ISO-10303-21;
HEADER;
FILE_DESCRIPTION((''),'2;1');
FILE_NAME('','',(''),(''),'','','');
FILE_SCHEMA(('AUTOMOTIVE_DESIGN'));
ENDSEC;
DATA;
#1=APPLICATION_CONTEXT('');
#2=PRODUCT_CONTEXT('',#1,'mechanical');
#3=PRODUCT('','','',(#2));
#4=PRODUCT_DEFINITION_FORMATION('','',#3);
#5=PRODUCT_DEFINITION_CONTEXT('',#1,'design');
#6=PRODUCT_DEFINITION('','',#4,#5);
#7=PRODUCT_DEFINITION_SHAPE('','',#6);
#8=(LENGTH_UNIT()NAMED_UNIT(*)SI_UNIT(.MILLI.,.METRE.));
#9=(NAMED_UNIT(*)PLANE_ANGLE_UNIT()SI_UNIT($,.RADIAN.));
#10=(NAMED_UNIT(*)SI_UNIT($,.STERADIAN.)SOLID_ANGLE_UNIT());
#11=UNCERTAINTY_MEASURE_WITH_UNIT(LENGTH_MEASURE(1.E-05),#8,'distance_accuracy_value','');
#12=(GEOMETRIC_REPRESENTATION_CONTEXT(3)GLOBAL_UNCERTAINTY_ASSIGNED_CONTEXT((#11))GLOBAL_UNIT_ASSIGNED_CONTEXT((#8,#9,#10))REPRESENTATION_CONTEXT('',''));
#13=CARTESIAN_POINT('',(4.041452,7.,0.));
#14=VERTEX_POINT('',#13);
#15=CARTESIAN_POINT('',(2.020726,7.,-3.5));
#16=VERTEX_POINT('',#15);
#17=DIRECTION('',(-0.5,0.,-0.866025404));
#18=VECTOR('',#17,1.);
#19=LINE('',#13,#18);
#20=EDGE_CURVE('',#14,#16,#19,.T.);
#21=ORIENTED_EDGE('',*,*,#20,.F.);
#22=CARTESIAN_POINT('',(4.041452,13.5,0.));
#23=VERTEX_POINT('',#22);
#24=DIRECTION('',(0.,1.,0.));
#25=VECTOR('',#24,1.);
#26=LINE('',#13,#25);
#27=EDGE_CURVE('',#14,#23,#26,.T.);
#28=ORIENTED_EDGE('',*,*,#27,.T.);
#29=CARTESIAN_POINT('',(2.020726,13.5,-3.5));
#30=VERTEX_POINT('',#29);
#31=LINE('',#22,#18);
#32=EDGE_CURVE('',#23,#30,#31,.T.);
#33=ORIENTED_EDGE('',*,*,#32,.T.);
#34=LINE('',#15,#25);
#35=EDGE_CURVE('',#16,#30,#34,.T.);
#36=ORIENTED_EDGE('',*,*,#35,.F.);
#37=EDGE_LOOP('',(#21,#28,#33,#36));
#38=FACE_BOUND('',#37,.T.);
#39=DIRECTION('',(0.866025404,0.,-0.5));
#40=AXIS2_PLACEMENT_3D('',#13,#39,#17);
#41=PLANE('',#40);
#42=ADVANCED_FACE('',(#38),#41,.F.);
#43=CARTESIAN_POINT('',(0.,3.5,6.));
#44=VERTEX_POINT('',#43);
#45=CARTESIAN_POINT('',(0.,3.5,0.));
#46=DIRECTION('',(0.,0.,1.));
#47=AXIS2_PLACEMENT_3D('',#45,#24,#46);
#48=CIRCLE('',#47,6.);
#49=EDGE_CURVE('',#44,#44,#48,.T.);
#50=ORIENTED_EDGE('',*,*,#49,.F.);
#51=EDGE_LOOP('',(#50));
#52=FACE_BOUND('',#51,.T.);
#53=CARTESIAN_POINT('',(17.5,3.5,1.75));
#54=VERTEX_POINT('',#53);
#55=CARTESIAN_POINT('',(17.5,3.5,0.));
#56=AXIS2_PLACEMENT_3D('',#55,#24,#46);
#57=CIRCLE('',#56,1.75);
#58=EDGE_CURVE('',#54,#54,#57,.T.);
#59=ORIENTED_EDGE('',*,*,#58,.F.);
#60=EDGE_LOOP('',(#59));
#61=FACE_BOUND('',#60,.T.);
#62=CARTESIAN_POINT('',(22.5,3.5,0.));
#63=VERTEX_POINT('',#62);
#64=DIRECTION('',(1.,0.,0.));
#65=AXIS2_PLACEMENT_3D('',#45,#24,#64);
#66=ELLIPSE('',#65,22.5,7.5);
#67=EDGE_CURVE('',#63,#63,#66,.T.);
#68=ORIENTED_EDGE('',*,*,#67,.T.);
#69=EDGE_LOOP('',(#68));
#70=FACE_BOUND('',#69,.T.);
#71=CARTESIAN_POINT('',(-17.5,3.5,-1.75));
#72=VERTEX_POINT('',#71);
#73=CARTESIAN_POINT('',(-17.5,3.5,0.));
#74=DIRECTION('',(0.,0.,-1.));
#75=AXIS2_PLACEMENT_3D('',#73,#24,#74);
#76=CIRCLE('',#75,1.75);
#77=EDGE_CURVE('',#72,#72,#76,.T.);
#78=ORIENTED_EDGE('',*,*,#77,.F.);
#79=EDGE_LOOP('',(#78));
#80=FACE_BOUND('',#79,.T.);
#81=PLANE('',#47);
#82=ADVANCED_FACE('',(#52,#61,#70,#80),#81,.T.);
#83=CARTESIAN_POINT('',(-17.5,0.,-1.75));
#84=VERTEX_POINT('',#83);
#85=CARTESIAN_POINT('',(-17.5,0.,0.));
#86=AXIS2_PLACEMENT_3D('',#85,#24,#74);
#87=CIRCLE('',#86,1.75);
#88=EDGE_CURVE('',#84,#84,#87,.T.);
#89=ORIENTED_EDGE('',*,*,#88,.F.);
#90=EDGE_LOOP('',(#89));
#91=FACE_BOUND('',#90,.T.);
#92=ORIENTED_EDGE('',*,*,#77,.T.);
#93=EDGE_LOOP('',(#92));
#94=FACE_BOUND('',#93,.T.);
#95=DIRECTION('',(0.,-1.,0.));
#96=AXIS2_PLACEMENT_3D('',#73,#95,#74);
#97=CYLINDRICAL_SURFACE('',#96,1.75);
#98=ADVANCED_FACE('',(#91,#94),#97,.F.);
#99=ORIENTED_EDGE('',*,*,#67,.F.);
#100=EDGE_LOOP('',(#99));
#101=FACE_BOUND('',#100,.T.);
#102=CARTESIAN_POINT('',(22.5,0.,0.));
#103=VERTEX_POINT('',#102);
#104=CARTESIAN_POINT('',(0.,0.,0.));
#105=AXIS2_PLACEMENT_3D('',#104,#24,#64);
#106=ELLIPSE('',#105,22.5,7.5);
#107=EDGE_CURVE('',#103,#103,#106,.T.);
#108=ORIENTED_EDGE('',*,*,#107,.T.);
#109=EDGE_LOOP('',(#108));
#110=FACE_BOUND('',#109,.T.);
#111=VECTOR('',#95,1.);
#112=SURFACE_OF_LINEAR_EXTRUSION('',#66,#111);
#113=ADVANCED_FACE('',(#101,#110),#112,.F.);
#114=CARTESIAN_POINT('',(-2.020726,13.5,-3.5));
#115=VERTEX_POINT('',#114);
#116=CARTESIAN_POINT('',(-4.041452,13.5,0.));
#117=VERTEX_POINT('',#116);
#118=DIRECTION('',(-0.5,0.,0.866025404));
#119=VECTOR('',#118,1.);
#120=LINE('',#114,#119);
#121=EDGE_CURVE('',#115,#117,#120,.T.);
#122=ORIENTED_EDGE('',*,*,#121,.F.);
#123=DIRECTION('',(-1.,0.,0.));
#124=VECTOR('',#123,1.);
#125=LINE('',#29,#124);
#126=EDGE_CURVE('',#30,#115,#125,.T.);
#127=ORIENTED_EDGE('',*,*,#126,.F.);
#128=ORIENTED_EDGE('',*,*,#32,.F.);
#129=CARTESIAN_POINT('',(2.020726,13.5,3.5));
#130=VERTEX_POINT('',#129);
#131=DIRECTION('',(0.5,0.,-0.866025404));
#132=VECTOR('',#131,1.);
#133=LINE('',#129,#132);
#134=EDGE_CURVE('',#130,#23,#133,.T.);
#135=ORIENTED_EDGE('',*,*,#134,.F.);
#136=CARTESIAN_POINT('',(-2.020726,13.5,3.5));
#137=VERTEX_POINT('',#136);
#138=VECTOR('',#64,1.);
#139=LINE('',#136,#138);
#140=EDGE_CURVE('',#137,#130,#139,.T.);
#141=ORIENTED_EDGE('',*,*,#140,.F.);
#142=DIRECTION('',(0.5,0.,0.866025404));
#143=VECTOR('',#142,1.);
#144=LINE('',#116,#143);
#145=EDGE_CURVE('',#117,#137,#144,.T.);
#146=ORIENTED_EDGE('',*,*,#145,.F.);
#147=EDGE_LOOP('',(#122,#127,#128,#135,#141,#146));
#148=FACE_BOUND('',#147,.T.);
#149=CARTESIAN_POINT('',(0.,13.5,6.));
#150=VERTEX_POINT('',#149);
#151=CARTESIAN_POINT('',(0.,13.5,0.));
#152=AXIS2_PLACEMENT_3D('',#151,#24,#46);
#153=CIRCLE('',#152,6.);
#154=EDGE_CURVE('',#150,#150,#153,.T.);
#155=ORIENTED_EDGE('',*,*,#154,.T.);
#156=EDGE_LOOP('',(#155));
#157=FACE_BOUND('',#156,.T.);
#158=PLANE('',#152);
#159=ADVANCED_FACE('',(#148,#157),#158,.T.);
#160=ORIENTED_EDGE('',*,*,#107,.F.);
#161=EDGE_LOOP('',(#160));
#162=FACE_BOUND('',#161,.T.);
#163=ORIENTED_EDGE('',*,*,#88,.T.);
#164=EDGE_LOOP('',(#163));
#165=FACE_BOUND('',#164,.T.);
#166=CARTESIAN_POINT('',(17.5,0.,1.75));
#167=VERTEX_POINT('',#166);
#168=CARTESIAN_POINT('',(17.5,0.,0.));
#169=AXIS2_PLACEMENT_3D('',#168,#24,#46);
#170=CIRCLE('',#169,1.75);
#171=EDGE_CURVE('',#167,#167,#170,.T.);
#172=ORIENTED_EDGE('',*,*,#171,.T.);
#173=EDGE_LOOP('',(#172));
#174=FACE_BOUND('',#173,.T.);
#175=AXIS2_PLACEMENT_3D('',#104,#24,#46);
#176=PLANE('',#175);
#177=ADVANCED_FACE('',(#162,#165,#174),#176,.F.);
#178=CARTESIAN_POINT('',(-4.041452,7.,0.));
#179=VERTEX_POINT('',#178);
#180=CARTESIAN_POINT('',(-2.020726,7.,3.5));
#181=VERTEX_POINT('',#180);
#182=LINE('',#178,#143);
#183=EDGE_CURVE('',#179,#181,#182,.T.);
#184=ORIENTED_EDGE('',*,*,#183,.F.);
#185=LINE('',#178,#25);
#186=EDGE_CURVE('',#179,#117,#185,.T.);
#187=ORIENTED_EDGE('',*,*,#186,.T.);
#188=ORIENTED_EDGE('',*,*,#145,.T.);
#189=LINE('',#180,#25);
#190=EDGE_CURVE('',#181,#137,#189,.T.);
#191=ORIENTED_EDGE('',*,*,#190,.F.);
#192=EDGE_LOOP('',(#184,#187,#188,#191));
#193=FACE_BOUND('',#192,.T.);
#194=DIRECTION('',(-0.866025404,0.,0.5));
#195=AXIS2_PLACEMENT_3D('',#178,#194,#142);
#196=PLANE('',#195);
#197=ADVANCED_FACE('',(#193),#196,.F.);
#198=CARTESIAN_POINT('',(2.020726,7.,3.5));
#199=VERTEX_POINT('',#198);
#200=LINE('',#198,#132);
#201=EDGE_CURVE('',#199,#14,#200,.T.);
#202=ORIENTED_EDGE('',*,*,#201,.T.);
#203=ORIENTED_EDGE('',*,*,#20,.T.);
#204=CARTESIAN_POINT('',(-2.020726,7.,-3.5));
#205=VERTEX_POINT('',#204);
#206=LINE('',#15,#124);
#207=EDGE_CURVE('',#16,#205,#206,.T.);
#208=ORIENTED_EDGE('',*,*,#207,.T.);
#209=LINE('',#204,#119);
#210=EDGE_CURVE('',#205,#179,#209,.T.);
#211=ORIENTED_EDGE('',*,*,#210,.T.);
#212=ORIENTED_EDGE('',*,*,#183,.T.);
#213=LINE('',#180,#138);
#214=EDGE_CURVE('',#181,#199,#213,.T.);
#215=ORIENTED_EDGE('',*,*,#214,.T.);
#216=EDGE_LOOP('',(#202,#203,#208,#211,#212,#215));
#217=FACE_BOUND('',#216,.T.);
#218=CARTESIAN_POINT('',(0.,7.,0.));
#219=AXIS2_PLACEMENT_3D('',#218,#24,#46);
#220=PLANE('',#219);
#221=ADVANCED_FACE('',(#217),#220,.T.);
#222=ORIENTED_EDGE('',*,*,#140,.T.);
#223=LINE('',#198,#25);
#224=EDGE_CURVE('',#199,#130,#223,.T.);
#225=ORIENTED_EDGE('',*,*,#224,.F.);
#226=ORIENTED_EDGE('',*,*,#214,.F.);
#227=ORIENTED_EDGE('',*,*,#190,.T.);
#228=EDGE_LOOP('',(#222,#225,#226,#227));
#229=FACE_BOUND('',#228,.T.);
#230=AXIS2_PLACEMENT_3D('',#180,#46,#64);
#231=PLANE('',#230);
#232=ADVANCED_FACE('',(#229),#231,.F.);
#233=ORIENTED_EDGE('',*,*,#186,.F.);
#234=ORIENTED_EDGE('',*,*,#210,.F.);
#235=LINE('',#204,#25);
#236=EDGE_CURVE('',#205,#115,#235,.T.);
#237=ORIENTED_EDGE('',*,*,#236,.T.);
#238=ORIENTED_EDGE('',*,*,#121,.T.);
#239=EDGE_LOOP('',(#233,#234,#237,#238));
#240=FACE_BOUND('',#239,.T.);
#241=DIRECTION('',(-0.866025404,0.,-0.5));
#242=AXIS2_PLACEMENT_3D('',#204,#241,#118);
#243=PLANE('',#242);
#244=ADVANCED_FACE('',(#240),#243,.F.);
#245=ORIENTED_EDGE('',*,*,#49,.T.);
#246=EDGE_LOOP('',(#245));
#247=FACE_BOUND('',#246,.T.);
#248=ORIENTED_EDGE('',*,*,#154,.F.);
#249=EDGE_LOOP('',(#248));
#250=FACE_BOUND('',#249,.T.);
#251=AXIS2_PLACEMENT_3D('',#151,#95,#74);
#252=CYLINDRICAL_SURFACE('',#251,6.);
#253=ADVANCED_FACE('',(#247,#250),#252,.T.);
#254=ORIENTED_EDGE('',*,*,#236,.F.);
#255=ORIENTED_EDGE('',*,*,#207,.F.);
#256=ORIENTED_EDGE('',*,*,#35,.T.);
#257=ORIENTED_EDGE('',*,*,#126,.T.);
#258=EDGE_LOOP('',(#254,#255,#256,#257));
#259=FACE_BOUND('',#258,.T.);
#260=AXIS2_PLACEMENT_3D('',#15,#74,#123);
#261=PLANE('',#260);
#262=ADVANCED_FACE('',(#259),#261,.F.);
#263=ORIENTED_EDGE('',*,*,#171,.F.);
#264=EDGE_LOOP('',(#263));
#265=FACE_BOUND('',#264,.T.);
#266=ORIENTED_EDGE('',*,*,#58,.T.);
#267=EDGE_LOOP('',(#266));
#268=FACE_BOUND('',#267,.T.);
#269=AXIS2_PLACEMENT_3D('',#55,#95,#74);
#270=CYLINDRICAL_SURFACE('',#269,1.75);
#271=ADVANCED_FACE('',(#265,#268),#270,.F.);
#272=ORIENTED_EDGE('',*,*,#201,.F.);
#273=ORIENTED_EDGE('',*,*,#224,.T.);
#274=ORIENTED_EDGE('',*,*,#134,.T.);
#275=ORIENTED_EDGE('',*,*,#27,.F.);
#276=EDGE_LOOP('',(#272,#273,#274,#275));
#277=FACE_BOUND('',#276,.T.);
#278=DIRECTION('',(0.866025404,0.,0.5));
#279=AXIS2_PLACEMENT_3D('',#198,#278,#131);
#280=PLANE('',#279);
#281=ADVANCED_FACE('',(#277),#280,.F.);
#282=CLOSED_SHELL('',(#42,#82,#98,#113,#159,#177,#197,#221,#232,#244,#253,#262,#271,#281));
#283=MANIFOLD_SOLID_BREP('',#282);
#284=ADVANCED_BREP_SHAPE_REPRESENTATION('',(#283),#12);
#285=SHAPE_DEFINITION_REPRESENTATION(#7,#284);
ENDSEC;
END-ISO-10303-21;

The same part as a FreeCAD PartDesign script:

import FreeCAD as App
import Part
import Sketcher
from FreeCAD import Vector
Q = App.Units.Quantity

doc = App.newDocument("Part")
body = doc.addObject("PartDesign::Body", "Body")

sketch1 = body.newObject("Sketcher::SketchObject", "Sketch")
sketch1.AttachmentSupport = (doc.getObject("XZ_Plane"), [""])
sketch1.MapMode = "FlatFace"
sketch1.addGeometry([
    Part.Ellipse(Vector(22.5, 0, 0), Vector(0, 7.5, 0), Vector(0, 0, 0)),
    Part.Circle(Vector(-17.5, 0, 0), Vector(0, 0, 1), 1.75),
    Part.Circle(Vector(17.5, 0, 0), Vector(0, 0, 1), 1.75),
], False)
sketch1.addConstraint([
    Sketcher.Constraint("Block", 0),
    Sketcher.Constraint("Equal", 1, 2),
    Sketcher.Constraint("Symmetric", 1, 3, 2, 3, -1, 1),
    Sketcher.Constraint("PointOnObject", 1, 3, -1),
    Sketcher.Constraint("Diameter", 1, 3.5),
    Sketcher.Constraint("DistanceX", 1, 3, 2, 3, 35.0),
])
pad1 = body.newObject("PartDesign::Pad", "Pad")
pad1.Profile = sketch1
pad1.Length = 3.5
pad1.Reversed = True

sketch2 = body.newObject("Sketcher::SketchObject", "Sketch001")
sketch2.AttachmentSupport = (doc.getObject("XZ_Plane"), [""])
sketch2.MapMode = "FlatFace"
sketch2.AttachmentOffset = App.Placement(Vector(0, 0, -3.5), App.Rotation())
sketch2.addGeometry(Part.Circle(Vector(0, 0, 0), Vector(0, 0, 1), 6), False)
sketch2.addConstraint([
    Sketcher.Constraint("Coincident", 0, 3, -1, 1),
    Sketcher.Constraint("Diameter", 0, 12.0),
])
pad2 = body.newObject("PartDesign::Pad", "Pad001")
pad2.Profile = sketch2
pad2.Length = 10
pad2.Reversed = True

sketch3 = body.newObject("Sketcher::SketchObject", "Sketch002")
sketch3.AttachmentSupport = (doc.getObject("XZ_Plane"), [""])
sketch3.MapMode = "FlatFace"
sketch3.AttachmentOffset = App.Placement(Vector(0, 0, -13.5), App.Rotation())
sketch3.addGeometry([
    Part.LineSegment(Vector(2, 3.5, 0), Vector(4, 0, 0)),
    Part.LineSegment(Vector(4, 0, 0), Vector(2, -3.5, 0)),
    Part.LineSegment(Vector(2, -3.5, 0), Vector(-2, -3.5, 0)),
    Part.LineSegment(Vector(-2, -3.5, 0), Vector(-4, 0, 0)),
    Part.LineSegment(Vector(-4, 0, 0), Vector(-2, 3.5, 0)),
    Part.LineSegment(Vector(-2, 3.5, 0), Vector(2, 3.5, 0)),
], False)
sketch3.addConstraint([
    Sketcher.Constraint("Coincident", 0, 2, 1, 1),
    Sketcher.Constraint("Coincident", 1, 2, 2, 1),
    Sketcher.Constraint("Coincident", 2, 2, 3, 1),
    Sketcher.Constraint("Coincident", 3, 2, 4, 1),
    Sketcher.Constraint("Coincident", 4, 2, 5, 1),
    Sketcher.Constraint("Coincident", 5, 2, 0, 1),
    Sketcher.Constraint("Horizontal", 2),
    Sketcher.Constraint("Horizontal", 5),
    Sketcher.Constraint("Symmetric", 0, 2, 3, 2, -1, 1),
    Sketcher.Constraint("Symmetric", 1, 2, 4, 2, -1, 1),
    Sketcher.Constraint("PointOnObject", 0, 2, -1),
    Sketcher.Constraint("Parallel", 0, 3),
    Sketcher.Constraint("Vertical", 2, 2, 4, 2),
    Sketcher.Constraint("Angle", 0, Q("-60 deg")),
    Sketcher.Constraint("DistanceY", 2, 2, 4, 2, 7.0),
    Sketcher.Constraint("DistanceX", 2, 2, 2, 1, 4.041452),
])
pocket1 = body.newObject("PartDesign::Pocket", "Pocket")
pocket1.Profile = sketch3
pocket1.Length = 6.5
pocket1.Reversed = True

doc.recompute()
